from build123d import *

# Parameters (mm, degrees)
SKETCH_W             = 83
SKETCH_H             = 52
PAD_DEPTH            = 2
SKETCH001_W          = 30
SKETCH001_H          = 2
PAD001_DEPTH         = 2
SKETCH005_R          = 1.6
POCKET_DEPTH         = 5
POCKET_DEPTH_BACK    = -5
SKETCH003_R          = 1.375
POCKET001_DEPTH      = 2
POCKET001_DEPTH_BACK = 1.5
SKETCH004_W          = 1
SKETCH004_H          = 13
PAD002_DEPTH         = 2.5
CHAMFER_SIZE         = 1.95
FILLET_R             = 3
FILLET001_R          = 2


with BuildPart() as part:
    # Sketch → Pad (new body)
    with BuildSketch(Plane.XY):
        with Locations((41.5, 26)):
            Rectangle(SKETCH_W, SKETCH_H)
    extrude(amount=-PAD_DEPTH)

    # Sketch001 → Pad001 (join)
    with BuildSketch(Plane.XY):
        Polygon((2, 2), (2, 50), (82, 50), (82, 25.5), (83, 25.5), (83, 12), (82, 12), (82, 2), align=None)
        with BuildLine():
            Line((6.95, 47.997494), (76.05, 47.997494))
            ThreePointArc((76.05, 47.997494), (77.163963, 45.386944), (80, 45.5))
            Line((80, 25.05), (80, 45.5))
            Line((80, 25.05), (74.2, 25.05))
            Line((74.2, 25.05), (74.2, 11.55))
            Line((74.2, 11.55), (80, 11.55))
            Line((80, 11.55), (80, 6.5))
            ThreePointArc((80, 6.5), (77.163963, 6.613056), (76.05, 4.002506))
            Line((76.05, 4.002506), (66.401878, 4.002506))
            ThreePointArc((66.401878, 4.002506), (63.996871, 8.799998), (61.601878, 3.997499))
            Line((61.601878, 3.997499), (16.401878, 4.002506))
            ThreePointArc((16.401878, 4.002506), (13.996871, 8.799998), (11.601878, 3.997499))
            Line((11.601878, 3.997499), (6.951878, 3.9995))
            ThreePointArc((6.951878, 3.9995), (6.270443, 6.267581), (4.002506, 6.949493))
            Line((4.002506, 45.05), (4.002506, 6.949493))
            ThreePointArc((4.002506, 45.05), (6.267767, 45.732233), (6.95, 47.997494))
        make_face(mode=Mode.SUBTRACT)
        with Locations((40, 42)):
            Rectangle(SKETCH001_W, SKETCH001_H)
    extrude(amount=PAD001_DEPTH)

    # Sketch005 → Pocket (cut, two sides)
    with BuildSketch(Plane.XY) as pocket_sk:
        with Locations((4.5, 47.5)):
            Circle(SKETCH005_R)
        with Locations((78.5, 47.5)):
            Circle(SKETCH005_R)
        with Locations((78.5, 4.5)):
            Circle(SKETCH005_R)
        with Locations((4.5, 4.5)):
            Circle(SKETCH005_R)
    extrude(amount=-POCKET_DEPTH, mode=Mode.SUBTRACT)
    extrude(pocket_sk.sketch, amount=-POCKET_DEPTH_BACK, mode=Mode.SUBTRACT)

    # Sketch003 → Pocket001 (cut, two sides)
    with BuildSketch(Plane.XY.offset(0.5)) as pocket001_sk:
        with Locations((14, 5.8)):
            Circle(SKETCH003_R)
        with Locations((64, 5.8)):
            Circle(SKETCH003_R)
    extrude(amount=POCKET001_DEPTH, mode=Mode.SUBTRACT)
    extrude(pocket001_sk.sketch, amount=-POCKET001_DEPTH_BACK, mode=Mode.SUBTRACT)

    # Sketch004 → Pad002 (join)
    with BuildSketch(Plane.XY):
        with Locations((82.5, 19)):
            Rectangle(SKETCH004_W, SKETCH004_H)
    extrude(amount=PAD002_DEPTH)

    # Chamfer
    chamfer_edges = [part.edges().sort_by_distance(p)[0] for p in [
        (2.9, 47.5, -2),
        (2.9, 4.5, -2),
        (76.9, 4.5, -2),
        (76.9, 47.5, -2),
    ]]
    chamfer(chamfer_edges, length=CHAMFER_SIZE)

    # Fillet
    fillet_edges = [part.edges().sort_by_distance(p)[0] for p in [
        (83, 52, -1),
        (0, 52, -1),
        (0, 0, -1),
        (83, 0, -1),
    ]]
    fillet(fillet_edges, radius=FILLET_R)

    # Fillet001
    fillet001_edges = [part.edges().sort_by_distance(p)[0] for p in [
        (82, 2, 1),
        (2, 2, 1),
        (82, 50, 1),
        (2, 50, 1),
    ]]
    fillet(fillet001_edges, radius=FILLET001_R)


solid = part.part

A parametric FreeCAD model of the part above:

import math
import FreeCAD as App
import Part
import Sketcher
from FreeCAD import Vector


def edges_at(feature, points):
    """Names of the edges that pass closest to the given points."""
    edges = feature.Shape.Edges
    near = lambda p: min(range(len(edges)), key=lambda i: edges[i].distToShape(Part.Vertex(*p))[0])
    return sorted({f"Edge{near(p) + 1}" for p in points})


def add_polygon(sketch, points):
    """Adds a closed chain of lines whose ends are joined by coincident constraints."""
    first, n = sketch.GeometryCount, len(points)
    for a, b in zip(points, points[1:] + points[:1]):
        sketch.addGeometry(Part.LineSegment(App.Vector(*a, 0), App.Vector(*b, 0)), False)
    for i in range(n):
        sketch.addConstraint(Sketcher.Constraint("Coincident", first + i, 2, first + (i + 1) % n, 1))

doc = App.newDocument("Part")
body = doc.addObject("PartDesign::Body", "Body")

# Sketch on XY plane
sketch1 = body.newObject("Sketcher::SketchObject", "Sketch")
sketch1.AttachmentSupport = (doc.getObject("XY_Plane"), [""])
sketch1.MapMode = "FlatFace"
add_polygon(sketch1, [(0, 52), (0, 0), (83, 0), (83, 52)])  # lines 0-3
sketch1.addConstraint([
    Sketcher.Constraint("Vertical", 0),
    Sketcher.Constraint("Horizontal", 1),
    Sketcher.Constraint("Vertical", 2),
    Sketcher.Constraint("Horizontal", 3),
    Sketcher.Constraint("Coincident", 0, 2, -1, 1),
    Sketcher.Constraint("DistanceX", 1, 1, 1, 2, 83.0),
    Sketcher.Constraint("DistanceY", 0, 2, 0, 1, 52.0),
])
pad1 = body.newObject("PartDesign::Pad", "Pad")
pad1.Profile = sketch1
pad1.Length = 2
pad1.Reversed = True

# Sketch on XY plane
sketch2 = body.newObject("Sketcher::SketchObject", "Sketch001")
sketch2.AttachmentSupport = (doc.getObject("XY_Plane"), [""])
sketch2.MapMode = "FlatFace"
add_polygon(sketch2, [(2, 50), (2, 2), (82, 2), (82, 12), (83, 12), (83, 25.5), (82, 25.5), (82, 50)])  # lines 0-7
sketch2.addGeometry(Part.LineSegment(Vector(7, 48, 0), Vector(76, 48, 0)), False)  # 8
sketch2.addGeometry(Part.ArcOfCircle(Part.Circle(Vector(78.5, 47.5, 0), Vector(0, 0, 1), 2.5), math.radians(169), math.radians(307)), False)  # 9
sketch2.addGeometry(Part.LineSegment(Vector(80, 45.5, 0), Vector(80, 25.1, 0)), False)  # 10
sketch2.addGeometry(Part.LineSegment(Vector(80, 25.1, 0), Vector(74.2, 25.1, 0)), False)  # 11
sketch2.addGeometry(Part.LineSegment(Vector(74.2, 25.1, 0), Vector(74.2, 11.6, 0)), False)  # 12
sketch2.addGeometry(Part.LineSegment(Vector(74.2, 11.6, 0), Vector(80, 11.6, 0)), False)  # 13
sketch2.addGeometry(Part.LineSegment(Vector(80, 11.6, 0), Vector(80, 6.5, 0)), False)  # 14
sketch2.addGeometry(Part.ArcOfCircle(Part.Circle(Vector(78.5, 4.5, 0), Vector(0, 0, 1), 2.5), math.radians(53), math.radians(191)), False)  # 15
sketch2.addGeometry(Part.LineSegment(Vector(76, 4, 0), Vector(66.4, 4, 0)), False)  # 16
sketch2.addGeometry(Part.ArcOfCircle(Part.Circle(Vector(64, 5.8, 0), Vector(0, 0, 1), 3), math.radians(-37), math.radians(217)), False)  # 17
sketch2.addGeometry(Part.LineSegment(Vector(61.6, 4, 0), Vector(16.4, 4, 0)), False)  # 18
sketch2.addGeometry(Part.ArcOfCircle(Part.Circle(Vector(14, 5.8, 0), Vector(0, 0, 1), 3), math.radians(-37), math.radians(217)), False)  # 19
sketch2.addGeometry(Part.LineSegment(Vector(11.6, 4, 0), Vector(7, 4, 0)), False)  # 20
sketch2.addGeometry(Part.ArcOfCircle(Part.Circle(Vector(4.5, 4.5, 0), Vector(0, 0, 1), 2.5), math.radians(-12), math.radians(102)), False)  # 21
sketch2.addGeometry(Part.LineSegment(Vector(4, 6.9, 0), Vector(4, 45, 0)), False)  # 22
sketch2.addGeometry(Part.ArcOfCircle(Part.Circle(Vector(4.5, 47.5, 0), Vector(0, 0, 1), 2.5), math.radians(-101), math.radians(11)), False)  # 23
add_polygon(sketch2, [(25, 43), (25, 41), (55, 41), (55, 43)])  # lines 24-27
sketch2.addConstraint([
    Sketcher.Constraint("Coincident", 8, 2, 9, 1),
    Sketcher.Constraint("Coincident", 9, 2, 10, 1),
    Sketcher.Constraint("Coincident", 10, 2, 11, 1),
    Sketcher.Constraint("Coincident", 11, 2, 12, 1),
    Sketcher.Constraint("Coincident", 12, 2, 13, 1),
    Sketcher.Constraint("Coincident", 13, 2, 14, 1),
    Sketcher.Constraint("Coincident", 14, 2, 15, 1),
    Sketcher.Constraint("Coincident", 15, 2, 16, 1),
    Sketcher.Constraint("Coincident", 16, 2, 17, 1),
    Sketcher.Constraint("Coincident", 17, 2, 18, 1),
    Sketcher.Constraint("Coincident", 18, 2, 19, 1),
    Sketcher.Constraint("Coincident", 19, 2, 20, 1),
    Sketcher.Constraint("Coincident", 20, 2, 21, 1),
    Sketcher.Constraint("Coincident", 21, 2, 22, 1),
    Sketcher.Constraint("Coincident", 22, 2, 23, 1),
    Sketcher.Constraint("Coincident", 23, 2, 8, 1),
    Sketcher.Constraint("Vertical", 0),
    Sketcher.Constraint("Horizontal", 1),
    Sketcher.Constraint("Vertical", 2),
    Sketcher.Constraint("Horizontal", 3),
    Sketcher.Constraint("Vertical", 4),
    Sketcher.Constraint("Horizontal", 5),
    Sketcher.Constraint("Vertical", 6),
    Sketcher.Constraint("Horizontal", 7),
    Sketcher.Constraint("Horizontal", 8),
    Sketcher.Constraint("Vertical", 10),
    Sketcher.Constraint("Horizontal", 11),
    Sketcher.Constraint("Vertical", 12),
    Sketcher.Constraint("Horizontal", 13),
    Sketcher.Constraint("Vertical", 14),
    Sketcher.Constraint("Horizontal", 16),
    Sketcher.Constraint("Vertical", 22),
    Sketcher.Constraint("Vertical", 24),
    Sketcher.Constraint("Horizontal", 25),
    Sketcher.Constraint("Vertical", 26),
    Sketcher.Constraint("Horizontal", 27),
    Sketcher.Constraint("Equal", 9, 15),
    Sketcher.Constraint("Equal", 17, 19),
    Sketcher.Constraint("Equal", 15, 21),
    Sketcher.Constraint("Equal", 21, 23),
    Sketcher.Constraint("Horizontal", 17, 3, 19, 3),
    Sketcher.Constraint("Horizontal", 15, 3, 21, 3),
    Sketcher.Constraint("Horizontal", 9, 3, 23, 3),
    Sketcher.Constraint("Horizontal", 16, 2, 18, 2),
    Sketcher.Constraint("Horizontal", 17, 2, 19, 2),
    Sketcher.Constraint("Vertical", 9, 3, 15, 3),
    Sketcher.Constraint("Vertical", 2, 2, 5, 2),
    Sketcher.Constraint("Vertical", 10, 2, 13, 2),
    Sketcher.Constraint("Vertical", 8, 2, 15, 2),
    Sketcher.Constraint("Equal", 4, 12),
    Sketcher.Constraint("Radius", 17, 3.0),
    Sketcher.Constraint("Radius", 9, 2.5),
    Sketcher.Constraint("DistanceX", 1, 1, 1, 2, 80.0),
    Sketcher.Constraint("DistanceX", 3, 1, 3, 2, 1.0),
    Sketcher.Constraint("DistanceX", 25, 1, 25, 2, 30.0),
    Sketcher.Constraint("DistanceY", 0, 2, 0, 1, 48.0),
    Sketcher.Constraint("DistanceY", 2, 1, 2, 2, 10.0),
    Sketcher.Constraint("DistanceY", 24, 2, 24, 1, 2.0),
    Sketcher.Constraint("DistanceX", 8, 1, 8, 2, 69.1),
    Sketcher.Constraint("DistanceX", 11, 2, 11, 1, 5.8),
    Sketcher.Constraint("DistanceY", 4, 1, 4, 2, 13.5),
    Sketcher.Constraint("DistanceX", -1, 1, 17, 3, 64.0),
    Sketcher.Constraint("DistanceX", -1, 1, 19, 3, 14.0),
    Sketcher.Constraint("DistanceX", -1, 1, 0, 2, 2.0),
    Sketcher.Constraint("DistanceY", -1, 1, 0, 2, 2.0),
    Sketcher.Constraint("DistanceX", -1, 1, 9, 2, 80.0),
    Sketcher.Constraint("DistanceX", -1, 1, 24, 2, 25.0),
    Sketcher.Constraint("DistanceY", -1, 1, 24, 2, 41.0),
    Sketcher.Constraint("DistanceY", 15, 3, 9, 3, 43.0),
    Sketcher.Constraint("DistanceX", 23, 3, 9, 3, 74.0),
    Sketcher.Constraint("DistanceY", 15, 3, 4, 2, 21.0),
    Sketcher.Constraint("DistanceY", 9, 2, 9, 3, 2.0),
    Sketcher.Constraint("Distance", 18, 45.2),
    Sketcher.Constraint("DistanceY", 10, 2, 10, 1, 20.45),
    Sketcher.Constraint("DistanceY", -1, 1, 17, 3, 5.8),
    Sketcher.Constraint("Distance", 20, 4.65),
    Sketcher.Constraint("DistanceY", -1, 1, 22, 2, 45.05),
    Sketcher.Constraint("DistanceY", 19, 2, 20, 2, 0.002001),
])
pad2 = body.newObject("PartDesign::Pad", "Pad001")
pad2.Profile = sketch2
pad2.Length = 2

# Sketch on XY plane
sketch3 = body.newObject("Sketcher::SketchObject", "Sketch002")
sketch3.AttachmentSupport = (doc.getObject("XY_Plane"), [""])
sketch3.MapMode = "FlatFace"
sketch3.addGeometry([
    Part.Circle(Vector(4.5, 47.5, 0), Vector(0, 0, 1), 1.6),
    Part.Circle(Vector(78.5, 47.5, 0), Vector(0, 0, 1), 1.6),
    Part.Circle(Vector(78.5, 4.5, 0), Vector(0, 0, 1), 1.6),
    Part.Circle(Vector(4.5, 4.5, 0), Vector(0, 0, 1), 1.6),
], False)
sketch3.addConstraint([
    Sketcher.Constraint("Equal", 0, 1),
    Sketcher.Constraint("Equal", 1, 2),
    Sketcher.Constraint("Equal", 2, 3),
    Sketcher.Constraint("Horizontal", 0, 3, 1, 3),
    Sketcher.Constraint("Horizontal", 2, 3, 3, 3),
    Sketcher.Constraint("Vertical", 1, 3, 2, 3),
    Sketcher.Constraint("Vertical", 0, 3, 3, 3),
    Sketcher.Constraint("Diameter", 0, 3.2),
    Sketcher.Constraint("DistanceX", 0, 3, 1, 3, 74.0),
    Sketcher.Constraint("DistanceY", 2, 3, 1, 3, 43.0),
    Sketcher.Constraint("DistanceX", -1, 1, 0, 3, 4.5),
    Sketcher.Constraint("DistanceY", -1, 1, 0, 3, 47.5),
])
pocket1 = body.newObject("PartDesign::Pocket", "Pocket")
pocket1.Profile = sketch3
pocket1.Type = "ThroughAll"
pocket1.Midplane = True

# Sketch on XY plane
sketch4 = body.newObject("Sketcher::SketchObject", "Sketch003")
sketch4.AttachmentSupport = (doc.getObject("XY_Plane"), [""])
sketch4.MapMode = "FlatFace"
sketch4.AttachmentOffset = App.Placement(Vector(0, 0, 0.5), App.Rotation())
sketch4.addGeometry([
    Part.Circle(Vector(14, 5.8, 0), Vector(0, 0, 1), 1.4),
    Part.Circle(Vector(64, 5.8, 0), Vector(0, 0, 1), 1.4),
], False)
sketch4.addConstraint([
    Sketcher.Constraint("Equal", 0, 1),
    Sketcher.Constraint("Horizontal", 0, 3, 1, 3),
    Sketcher.Constraint("Diameter", 0, 2.75),
    Sketcher.Constraint("DistanceX", -1, 1, 0, 3, 14.0),
    Sketcher.Constraint("DistanceX", -1, 1, 1, 3, 64.0),
    Sketcher.Constraint("DistanceY", -1, 1, 0, 3, 5.8),
])
pocket2 = body.newObject("PartDesign::Pocket", "Pocket001")
pocket2.Profile = sketch4
pocket2.Type = "TwoLengths"
pocket2.Length = 2
pocket2.Length2 = 1.5
pocket2.Reversed = True

# Sketch on XY plane
sketch5 = body.newObject("Sketcher::SketchObject", "Sketch004")
sketch5.AttachmentSupport = (doc.getObject("XY_Plane"), [""])
sketch5.MapMode = "FlatFace"
add_polygon(sketch5, [(82, 25.5), (82, 12.5), (83, 12.5), (83, 25.5)])  # lines 0-3
sketch5.addConstraint([
    Sketcher.Constraint("Vertical", 0),
    Sketcher.Constraint("Horizontal", 1),
    Sketcher.Constraint("Vertical", 2),
    Sketcher.Constraint("Horizontal", 3),
    Sketcher.Constraint("DistanceX", 1, 1, 1, 2, 1.0),
    Sketcher.Constraint("DistanceY", 0, 2, 0, 1, 13.0),
    Sketcher.Constraint("DistanceX", -1, 1, 0, 2, 82.0),
    Sketcher.Constraint("DistanceY", -1, 1, 0, 2, 12.5),
])
pad3 = body.newObject("PartDesign::Pad", "Pad002")
pad3.Profile = sketch5
pad3.Length = 2.5
doc.recompute()

chamfer = body.newObject("PartDesign::Chamfer", "Chamfer")
chamfer.Base = (pad3, edges_at(pad3, [
    (2.9, 47.5, -2),
    (2.9, 4.5, -2),
    (76.9, 4.5, -2),
    (76.9, 47.5, -2),
]))
chamfer.Size = 1.95
doc.recompute()

fillet = body.newObject("PartDesign::Fillet", "Fillet")
fillet.Base = (chamfer, edges_at(chamfer, [
    (83, 52, -1),
    (0, 52, -1),
    (0, 0, -1),
    (83, 0, -1),
]))
fillet.Radius = 3
doc.recompute()

fillet2 = body.newObject("PartDesign::Fillet", "Fillet001")
fillet2.Base = (fillet, edges_at(fillet, [
    (82, 2, 1),
    (2, 2, 1),
    (82, 50, 1),
    (2, 50, 1),
]))
fillet2.Radius = 2

doc.recompute()
